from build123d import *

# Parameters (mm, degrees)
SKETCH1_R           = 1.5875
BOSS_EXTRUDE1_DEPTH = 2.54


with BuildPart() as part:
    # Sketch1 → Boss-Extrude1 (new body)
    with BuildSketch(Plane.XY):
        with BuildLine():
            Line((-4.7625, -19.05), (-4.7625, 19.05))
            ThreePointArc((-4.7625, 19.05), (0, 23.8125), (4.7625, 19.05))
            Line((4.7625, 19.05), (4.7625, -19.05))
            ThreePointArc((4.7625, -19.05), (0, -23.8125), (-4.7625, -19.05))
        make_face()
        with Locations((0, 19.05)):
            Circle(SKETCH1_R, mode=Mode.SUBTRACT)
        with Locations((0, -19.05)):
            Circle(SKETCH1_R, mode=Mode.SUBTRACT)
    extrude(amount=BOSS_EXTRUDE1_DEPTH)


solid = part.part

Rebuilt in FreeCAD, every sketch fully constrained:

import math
import FreeCAD as App
import Part
import Sketcher

V = App.Vector
Q = App.Units.Quantity

doc = App.newDocument("Part")
body = doc.addObject("PartDesign::Body", "Body")

# Sketch on XY plane
sketch1 = body.newObject("Sketcher::SketchObject", "Sketch")
sketch1.AttachmentSupport = (doc.getObject("XY_Plane"), [""])
sketch1.MapMode = "FlatFace"
sketch1.addGeometry([
    Part.LineSegment(V(-4.7625, 19.05, 0), V(-4.7625, -19.05, 0)),  # 0
    Part.ArcOfCircle(Part.Circle(V(0, -19.05, 0), V(0, 0, 1), 4.7625), math.radians(180), math.radians(360)),  # 1
    Part.LineSegment(V(4.7625, -19.05, 0), V(4.7625, 19.05, 0)),  # 2
    Part.ArcOfCircle(Part.Circle(V(0, 19.05, 0), V(0, 0, 1), 4.7625), math.radians(0), math.radians(180)),  # 3
    Part.Circle(V(0, -19.05, 0), V(0, 0, 1), 1.5875),  # 4
    Part.Circle(V(0, 19.05, 0), V(0, 0, 1), 1.5875),  # 5
], False)
sketch1.addConstraint([
    Sketcher.Constraint("Tangent", 0, 2, 1, 1),
    Sketcher.Constraint("Tangent", 1, 2, 2, 1),
    Sketcher.Constraint("Tangent", 2, 2, 3, 1),
    Sketcher.Constraint("Tangent", 3, 2, 0, 1),
    Sketcher.Constraint("Vertical", 0),
    Sketcher.Constraint("Vertical", 2),
    Sketcher.Constraint("Coincident", 4, 3, 1, 3),
    Sketcher.Constraint("Coincident", 5, 3, 3, 3),
    Sketcher.Constraint("Equal", 4, 5),
    Sketcher.Constraint("Symmetric", 1, 3, 3, 3, -1, 1),
    Sketcher.Constraint("Diameter", 4, Q("0.125 in")),
    Sketcher.Constraint("DistanceY", 0, 2, 0, 1, Q("1.5 in")),
    Sketcher.Constraint("Radius", 1, Q("0.1875 in")),
])
pad1 = body.newObject("PartDesign::Pad", "Pad")
pad1.Profile = sketch1
pad1.Length = Q("0.1 in")

doc.recompute()
